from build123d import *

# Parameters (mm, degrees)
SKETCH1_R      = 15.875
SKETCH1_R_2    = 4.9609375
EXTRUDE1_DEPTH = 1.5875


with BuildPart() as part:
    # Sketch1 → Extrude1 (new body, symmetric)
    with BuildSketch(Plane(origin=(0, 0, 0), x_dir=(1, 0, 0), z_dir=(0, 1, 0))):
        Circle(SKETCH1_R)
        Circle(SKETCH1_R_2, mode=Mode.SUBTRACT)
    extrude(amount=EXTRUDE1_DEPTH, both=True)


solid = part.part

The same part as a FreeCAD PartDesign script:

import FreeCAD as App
import Part
import Sketcher
Q = App.Units.Quantity

doc = App.newDocument("Part")
body = doc.addObject("PartDesign::Body", "Body")

# Sketch on XZ plane
sketch1 = doc.addObject("Sketcher::SketchObject", "Sketch")
body.addObject(sketch1)
sketch1.AttachmentSupport = (doc.XZ_Plane, [""])
sketch1.MapMode = "FlatFace"
sketch1.addGeometry([
    Part.Circle(App.Vector(0, 0, 0), App.Vector(0, 0, 1), 15.9),
    Part.Circle(App.Vector(0, 0, 0), App.Vector(0, 0, 1), 5),
], False)
sketch1.addConstraint([
    Sketcher.Constraint("Coincident", 0, 3, -1, 1),
    Sketcher.Constraint("Coincident", 1, 3, -1, 1),
    Sketcher.Constraint("Diameter", 0, Q("1.25 in")),
    Sketcher.Constraint("Diameter", 1, Q("0.390625 in")),
])
pad1 = doc.addObject("PartDesign::Pad", "Pad")
body.addObject(pad1)
pad1.Profile = sketch1
pad1.Length = Q("0.125 in")
pad1.Midplane = True

doc.recompute()
